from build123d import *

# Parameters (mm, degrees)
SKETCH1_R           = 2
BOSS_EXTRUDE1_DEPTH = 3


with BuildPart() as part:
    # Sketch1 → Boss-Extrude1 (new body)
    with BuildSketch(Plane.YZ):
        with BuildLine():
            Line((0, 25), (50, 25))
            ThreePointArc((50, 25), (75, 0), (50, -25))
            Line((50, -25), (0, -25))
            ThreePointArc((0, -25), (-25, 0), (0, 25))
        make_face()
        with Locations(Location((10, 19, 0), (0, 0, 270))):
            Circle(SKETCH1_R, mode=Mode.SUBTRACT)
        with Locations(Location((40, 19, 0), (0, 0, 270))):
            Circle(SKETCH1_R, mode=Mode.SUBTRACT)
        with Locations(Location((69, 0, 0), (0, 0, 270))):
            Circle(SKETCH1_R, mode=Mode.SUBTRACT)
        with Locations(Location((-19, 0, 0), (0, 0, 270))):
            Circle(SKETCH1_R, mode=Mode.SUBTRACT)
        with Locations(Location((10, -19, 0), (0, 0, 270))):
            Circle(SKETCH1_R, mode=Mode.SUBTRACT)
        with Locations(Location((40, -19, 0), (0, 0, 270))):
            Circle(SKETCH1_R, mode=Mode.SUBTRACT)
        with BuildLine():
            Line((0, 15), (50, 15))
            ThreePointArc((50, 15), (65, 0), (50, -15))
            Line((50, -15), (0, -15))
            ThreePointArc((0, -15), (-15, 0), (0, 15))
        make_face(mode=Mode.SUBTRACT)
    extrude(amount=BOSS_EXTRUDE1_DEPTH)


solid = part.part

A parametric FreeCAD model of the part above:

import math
import FreeCAD as App
import Part
import Sketcher

V = App.Vector

doc = App.newDocument("Part")
params = doc.addObject("Spreadsheet::Sheet", "Params")
for row, (alias, value) in enumerate([
    ("sketch1_diameter", "4 mm"),
    ("sketch1_radius", "25 mm"),
    ("sketch1_radius2", "15 mm"),
    ("sketch1_width", "50 mm"),
    ("pad1_length", "3 mm"),
], start=1):
    params.set(f"A{row}", alias)
    params.set(f"B{row}", "=" + value)
    params.setAlias(f"B{row}", alias)

body = doc.addObject("PartDesign::Body", "Body")

sketch1 = doc.addObject("Sketcher::SketchObject", "Sketch")
body.addObject(sketch1)
sketch1.AttachmentSupport = (doc.YZ_Plane, [""])
sketch1.MapMode = "FlatFace"
sketch1.addGeometry(Part.LineSegment(V(50, 25, 0), V(0, 25, 0)), False)
sketch1.addGeometry(Part.ArcOfCircle(Part.Circle(V(0, 0, 0), V(0, 0, 1), 25), math.radians(90), math.radians(270)), False)
sketch1.addGeometry(Part.LineSegment(V(0, -25, 0), V(50, -25, 0)), False)
sketch1.addGeometry(Part.ArcOfCircle(Part.Circle(V(50, 0, 0), V(0, 0, 1), 25), math.radians(-90), math.radians(90)), False)
sketch1.addGeometry(Part.Circle(V(40, -19, 0), V(0, 0, 1), 2), False)
sketch1.addGeometry(Part.Circle(V(10, -19, 0), V(0, 0, 1), 2), False)
sketch1.addGeometry(Part.Circle(V(69, 0, 0), V(0, 0, 1), 2), False)
sketch1.addGeometry(Part.Circle(V(40, 19, 0), V(0, 0, 1), 2), False)
sketch1.addGeometry(Part.LineSegment(V(0, 15, 0), V(50, 15, 0)), False)
sketch1.addGeometry(Part.ArcOfCircle(Part.Circle(V(50, 0, 0), V(0, 0, 1), 15), math.radians(-90), math.radians(90)), False)
sketch1.addGeometry(Part.LineSegment(V(50, -15, 0), V(0, -15, 0)), False)
sketch1.addGeometry(Part.ArcOfCircle(Part.Circle(V(0, 0, 0), V(0, 0, 1), 15), math.radians(90), math.radians(270)), False)
sketch1.addGeometry(Part.Circle(V(-19, 0, 0), V(0, 0, 1), 2), False)
sketch1.addGeometry(Part.Circle(V(10, 19, 0), V(0, 0, 1), 2), False)
sketch1.addConstraint(Sketcher.Constraint("Tangent", 0, 2, 1, 1))
sketch1.addConstraint(Sketcher.Constraint("Tangent", 1, 2, 2, 1))
sketch1.addConstraint(Sketcher.Constraint("Tangent", 2, 2, 3, 1))
sketch1.addConstraint(Sketcher.Constraint("Tangent", 3, 2, 0, 1))
sketch1.addConstraint(Sketcher.Constraint("Tangent", 8, 2, 9, 2))
sketch1.addConstraint(Sketcher.Constraint("Tangent", 9, 1, 10, 1))
sketch1.addConstraint(Sketcher.Constraint("Tangent", 10, 2, 11, 2))
sketch1.addConstraint(Sketcher.Constraint("Tangent", 11, 1, 8, 1))
sketch1.addConstraint(Sketcher.Constraint("Horizontal", 0))
sketch1.addConstraint(Sketcher.Constraint("Horizontal", 2))
sketch1.addConstraint(Sketcher.Constraint("Horizontal", 8))
sketch1.addConstraint(Sketcher.Constraint("Horizontal", 10))
sketch1.addConstraint(Sketcher.Constraint("Coincident", 1, 3, -1, 1))
sketch1.addConstraint(Sketcher.Constraint("Coincident", 11, 3, -1, 1))
sketch1.addConstraint(Sketcher.Constraint("Equal", 4, 5))
sketch1.addConstraint(Sketcher.Constraint("Equal", 5, 6))
sketch1.addConstraint(Sketcher.Constraint("Equal", 6, 7))
sketch1.addConstraint(Sketcher.Constraint("Equal", 7, 12))
sketch1.addConstraint(Sketcher.Constraint("Equal", 12, 13))
sketch1.addConstraint(Sketcher.Constraint("Symmetric", 4, 3, 7, 3, -1))
sketch1.addConstraint(Sketcher.Constraint("Symmetric", 5, 3, 13, 3, -1))
sketch1.addConstraint(Sketcher.Constraint("PointOnObject", 6, 3, -1))
sketch1.addConstraint(Sketcher.Constraint("PointOnObject", 12, 3, -1))
sketch1.addConstraint(Sketcher.Constraint("Horizontal", 4, 3, 5, 3))
sketch1.addConstraint(Sketcher.Constraint("Vertical", 9, 3, 2, 2))
sketch1.addConstraint(Sketcher.Constraint("Diameter", 4, 4.0))
sketch1.addConstraint(Sketcher.Constraint("Radius", 1, 25.0))
sketch1.addConstraint(Sketcher.Constraint("Radius", 9, 15.0))
sketch1.addConstraint(Sketcher.Constraint("DistanceX", 0, 2, 0, 1, 50.0))
sketch1.addConstraint(Sketcher.Constraint("DistanceX", -1, 1, 4, 3, 40.0))
sketch1.addConstraint(Sketcher.Constraint("DistanceY", 4, 3, -1, 1, 19.0))
sketch1.addConstraint(Sketcher.Constraint("DistanceX", -1, 1, 5, 3, 10.0))
sketch1.addConstraint(Sketcher.Constraint("DistanceX", -1, 1, 6, 3, 69.0))
sketch1.addConstraint(Sketcher.Constraint("DistanceX", 12, 3, -1, 1, 19.0))
sketch1.setExpression("Constraints[25]", "Params.sketch1_diameter")
sketch1.setExpression("Constraints[26]", "Params.sketch1_radius")
sketch1.setExpression("Constraints[27]", "Params.sketch1_radius2")
sketch1.setExpression("Constraints[28]", "Params.sketch1_width")
pad1 = doc.addObject("PartDesign::Pad", "Pad")
body.addObject(pad1)
pad1.Profile = sketch1
pad1.setExpression("Length", "Params.pad1_length")

doc.recompute()
